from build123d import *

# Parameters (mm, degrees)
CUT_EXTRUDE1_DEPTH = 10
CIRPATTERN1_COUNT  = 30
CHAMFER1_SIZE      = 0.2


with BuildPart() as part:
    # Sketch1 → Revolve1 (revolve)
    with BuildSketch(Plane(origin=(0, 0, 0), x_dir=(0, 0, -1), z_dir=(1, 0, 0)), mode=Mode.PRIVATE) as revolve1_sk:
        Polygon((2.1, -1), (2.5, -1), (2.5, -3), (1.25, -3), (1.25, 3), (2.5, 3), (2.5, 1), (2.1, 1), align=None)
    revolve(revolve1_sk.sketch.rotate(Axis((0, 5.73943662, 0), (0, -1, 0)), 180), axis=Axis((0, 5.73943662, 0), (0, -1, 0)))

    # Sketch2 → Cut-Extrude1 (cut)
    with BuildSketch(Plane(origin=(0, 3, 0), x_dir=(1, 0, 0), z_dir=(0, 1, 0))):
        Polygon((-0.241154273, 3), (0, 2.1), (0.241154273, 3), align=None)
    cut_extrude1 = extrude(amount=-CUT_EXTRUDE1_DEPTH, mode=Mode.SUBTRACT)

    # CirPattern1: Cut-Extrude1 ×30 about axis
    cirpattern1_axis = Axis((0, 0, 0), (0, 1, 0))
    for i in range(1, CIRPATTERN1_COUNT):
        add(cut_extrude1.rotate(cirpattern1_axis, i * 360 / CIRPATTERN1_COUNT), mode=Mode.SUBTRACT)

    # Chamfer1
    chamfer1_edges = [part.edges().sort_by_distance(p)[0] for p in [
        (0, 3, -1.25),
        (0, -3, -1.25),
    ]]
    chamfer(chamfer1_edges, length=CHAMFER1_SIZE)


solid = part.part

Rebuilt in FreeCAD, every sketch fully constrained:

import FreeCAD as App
import Part
import Sketcher
Q = App.Units.Quantity


def edges_at(feature, points):
    """Names of the edges that pass closest to the given points."""
    edges = feature.Shape.Edges
    near = lambda p: min(range(len(edges)), key=lambda i: edges[i].distToShape(Part.Vertex(*p))[0])
    return sorted({f"Edge{near(p) + 1}" for p in points})


def add_polygon(sketch, points):
    """Adds a closed chain of lines whose ends are joined by coincident constraints."""
    first, n = sketch.GeometryCount, len(points)
    for a, b in zip(points, points[1:] + points[:1]):
        sketch.addGeometry(Part.LineSegment(App.Vector(*a, 0), App.Vector(*b, 0)), False)
    for i in range(n):
        sketch.addConstraint(Sketcher.Constraint("Coincident", first + i, 2, first + (i + 1) % n, 1))

doc = App.newDocument("Part")
body = doc.addObject("PartDesign::Body", "Body")

# Sketch on YZ plane
sketch1 = doc.addObject("Sketcher::SketchObject", "Sketch")
body.addObject(sketch1)
sketch1.AttachmentSupport = (doc.YZ_Plane, [""])
sketch1.MapMode = "FlatFace"
add_polygon(sketch1, [(-1, -2.5), (-1, -2.1), (1, -2.1), (1, -2.5), (3, -2.5), (3, -1.25), (-3, -1.25), (-3, -2.5)])  # lines 0-7
sketch1.addConstraint([
    Sketcher.Constraint("Vertical", 0),
    Sketcher.Constraint("Horizontal", 1),
    Sketcher.Constraint("Vertical", 2),
    Sketcher.Constraint("Horizontal", 3),
    Sketcher.Constraint("Vertical", 4),
    Sketcher.Constraint("Horizontal", 5),
    Sketcher.Constraint("Vertical", 6),
    Sketcher.Constraint("Horizontal", 7),
    Sketcher.Constraint("Symmetric", 3, 2, 6, 2, -2),
    Sketcher.Constraint("Equal", 1, 3),
    Sketcher.Constraint("Equal", 3, 7),
    Sketcher.Constraint("DistanceX", 1, 1, 1, 2, Q("2 mm")),
    Sketcher.Constraint("DistanceY", 0, 1, 0, 2, Q("0.4 mm")),
    Sketcher.Constraint("DistanceY", 4, 1, 4, 2, Q("1.25 mm")),
    Sketcher.Constraint("DistanceY", 0, 2, -1, 1, Q("2.1 mm")),
])
revolution = doc.addObject("PartDesign::Revolution", "Revolution")
body.addObject(revolution)
revolution.Profile = sketch1
revolution.ReferenceAxis = (sketch1, ["H_Axis"])
revolution.Angle = 360

# Sketch on XZ plane
sketch2 = doc.addObject("Sketcher::SketchObject", "Sketch001")
body.addObject(sketch2)
sketch2.AttachmentSupport = (doc.XZ_Plane, [""])
sketch2.MapMode = "FlatFace"
sketch2.AttachmentOffset = App.Placement(App.Vector(0, 0, -3), App.Rotation())
add_polygon(sketch2, [(-0.241154, -3), (0, -2.1), (0.241154, -3)])  # lines 0-2
sketch2.addConstraint([
    Sketcher.Constraint("Horizontal", 2),
    Sketcher.Constraint("PointOnObject", 0, 2, -2),
    Sketcher.Constraint("Equal", 0, 1),
    Sketcher.Constraint("Angle", 0, Q("75 deg")),
    Sketcher.Constraint("DistanceY", 1, 2, -1, 1, Q("3 mm")),
    Sketcher.Constraint("DistanceY", 0, 2, -1, 1, Q("2.1 mm")),
])
pocket1 = doc.addObject("PartDesign::Pocket", "Pocket")
body.addObject(pocket1)
pocket1.Profile = sketch2
pocket1.Length = 10
pocket1.Reversed = True
doc.recompute()

polarpattern = doc.addObject("PartDesign::PolarPattern", "PolarPattern")
body.addObject(polarpattern)
polarpattern.Originals = [pocket1]
polarpattern.Axis = (doc.Y_Axis, [""])
polarpattern.Angle = 360
polarpattern.Occurrences = 30
body.Tip = polarpattern
doc.recompute()

chamfer = doc.addObject("PartDesign::Chamfer", "Chamfer")
body.addObject(chamfer)
chamfer.Base = (polarpattern, edges_at(polarpattern, [(0, 3, -1.25), (0, -3, -1.25)]))
chamfer.Size = 0.2

doc.recompute()
